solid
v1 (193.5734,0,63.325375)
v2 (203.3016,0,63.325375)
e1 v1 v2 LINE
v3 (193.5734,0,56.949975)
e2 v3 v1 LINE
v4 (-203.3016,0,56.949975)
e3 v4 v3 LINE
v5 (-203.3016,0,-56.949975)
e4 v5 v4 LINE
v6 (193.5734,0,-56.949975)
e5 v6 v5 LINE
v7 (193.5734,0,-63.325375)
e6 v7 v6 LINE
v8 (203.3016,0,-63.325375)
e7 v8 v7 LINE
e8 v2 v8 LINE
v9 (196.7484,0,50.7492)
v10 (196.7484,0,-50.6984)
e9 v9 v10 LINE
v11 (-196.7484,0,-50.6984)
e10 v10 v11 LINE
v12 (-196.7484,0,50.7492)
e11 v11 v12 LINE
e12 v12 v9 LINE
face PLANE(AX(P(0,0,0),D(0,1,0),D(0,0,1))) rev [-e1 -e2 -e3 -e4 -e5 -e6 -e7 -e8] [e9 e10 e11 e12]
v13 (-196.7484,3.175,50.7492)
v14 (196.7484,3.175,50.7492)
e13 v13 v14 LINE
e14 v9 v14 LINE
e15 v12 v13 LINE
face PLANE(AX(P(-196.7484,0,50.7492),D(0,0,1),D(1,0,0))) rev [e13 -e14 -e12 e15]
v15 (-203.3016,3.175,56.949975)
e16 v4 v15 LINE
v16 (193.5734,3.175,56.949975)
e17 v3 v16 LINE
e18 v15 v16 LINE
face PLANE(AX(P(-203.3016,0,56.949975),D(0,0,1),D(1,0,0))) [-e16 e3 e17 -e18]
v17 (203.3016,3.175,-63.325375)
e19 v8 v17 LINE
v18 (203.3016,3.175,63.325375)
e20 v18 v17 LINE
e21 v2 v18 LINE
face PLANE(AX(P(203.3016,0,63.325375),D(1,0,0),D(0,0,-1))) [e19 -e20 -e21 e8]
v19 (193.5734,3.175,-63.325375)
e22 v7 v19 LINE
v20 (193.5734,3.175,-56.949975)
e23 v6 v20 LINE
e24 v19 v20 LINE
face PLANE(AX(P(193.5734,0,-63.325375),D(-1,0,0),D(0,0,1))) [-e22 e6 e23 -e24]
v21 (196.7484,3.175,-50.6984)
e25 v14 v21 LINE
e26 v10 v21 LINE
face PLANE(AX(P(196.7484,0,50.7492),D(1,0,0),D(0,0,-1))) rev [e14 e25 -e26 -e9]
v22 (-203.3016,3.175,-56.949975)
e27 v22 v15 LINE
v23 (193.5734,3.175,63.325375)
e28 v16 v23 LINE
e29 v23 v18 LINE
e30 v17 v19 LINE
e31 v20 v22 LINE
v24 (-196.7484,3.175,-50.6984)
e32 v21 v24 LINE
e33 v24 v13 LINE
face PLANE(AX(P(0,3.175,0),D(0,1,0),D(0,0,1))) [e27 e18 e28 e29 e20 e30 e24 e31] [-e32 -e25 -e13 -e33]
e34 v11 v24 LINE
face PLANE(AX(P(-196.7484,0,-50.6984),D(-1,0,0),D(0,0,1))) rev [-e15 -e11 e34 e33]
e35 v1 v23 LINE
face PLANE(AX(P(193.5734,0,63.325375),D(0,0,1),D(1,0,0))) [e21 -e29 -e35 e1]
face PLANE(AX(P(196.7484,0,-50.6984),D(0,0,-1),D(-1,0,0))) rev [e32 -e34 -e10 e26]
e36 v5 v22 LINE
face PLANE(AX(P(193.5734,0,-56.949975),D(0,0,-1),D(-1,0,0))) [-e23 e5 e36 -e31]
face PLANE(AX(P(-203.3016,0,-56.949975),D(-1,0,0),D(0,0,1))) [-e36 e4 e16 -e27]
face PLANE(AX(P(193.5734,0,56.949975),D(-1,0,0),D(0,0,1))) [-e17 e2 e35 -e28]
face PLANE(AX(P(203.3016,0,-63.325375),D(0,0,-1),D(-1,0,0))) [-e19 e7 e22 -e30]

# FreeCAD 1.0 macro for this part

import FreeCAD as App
import Part
import Sketcher
Q = App.Units.Quantity


def add_polygon(sketch, points):
    """Adds a closed chain of lines whose ends are joined by coincident constraints."""
    first, n = sketch.GeometryCount, len(points)
    for a, b in zip(points, points[1:] + points[:1]):
        sketch.addGeometry(Part.LineSegment(App.Vector(*a, 0), App.Vector(*b, 0)), False)
    for i in range(n):
        sketch.addConstraint(Sketcher.Constraint("Coincident", first + i, 2, first + (i + 1) % n, 1))

doc = App.newDocument("Part")
body = doc.addObject("PartDesign::Body", "Body")

sketch1 = body.newObject("Sketcher::SketchObject", "Sketch")
sketch1.AttachmentSupport = (doc.getObject("XZ_Plane"), [""])
sketch1.MapMode = "FlatFace"
add_polygon(sketch1, [(194, 57), (194, 63), (203, 63), (203, -63), (194, -63), (194, -57), (-203, -57), (-203, 57)])
add_polygon(sketch1, [(197, 51), (-197, 51), (-197, -51), (197, -51)])
sketch1.addConstraint(Sketcher.Constraint("Vertical", 0))
sketch1.addConstraint(Sketcher.Constraint("Horizontal", 1))
sketch1.addConstraint(Sketcher.Constraint("Vertical", 2))
sketch1.addConstraint(Sketcher.Constraint("Horizontal", 3))
sketch1.addConstraint(Sketcher.Constraint("Vertical", 4))
sketch1.addConstraint(Sketcher.Constraint("Horizontal", 5))
sketch1.addConstraint(Sketcher.Constraint("Vertical", 6))
sketch1.addConstraint(Sketcher.Constraint("Horizontal", 7))
sketch1.addConstraint(Sketcher.Constraint("Horizontal", 8))
sketch1.addConstraint(Sketcher.Constraint("Vertical", 9))
sketch1.addConstraint(Sketcher.Constraint("Horizontal", 10))
sketch1.addConstraint(Sketcher.Constraint("Vertical", 11))
sketch1.addConstraint(Sketcher.Constraint("Symmetric", 0, 2, 3, 2, -1))
sketch1.addConstraint(Sketcher.Constraint("Equal", 0, 4))
sketch1.addConstraint(Sketcher.Constraint("DistanceX", 8, 2, 8, 1, Q("15.5 in")))
sketch1.addConstraint(Sketcher.Constraint("DistanceX", -1, 1, 1, 2, Q("8 in")))
sketch1.addConstraint(Sketcher.Constraint("DistanceX", 5, 2, -1, 1, Q("8 in")))
sketch1.addConstraint(Sketcher.Constraint("DistanceY", 9, 2, -1, 1, Q("2 in")))
sketch1.addConstraint(Sketcher.Constraint("DistanceX", 1, 1, 1, 2, Q("0.375 in")))
sketch1.addConstraint(Sketcher.Constraint("DistanceY", 0, 1, 0, 2, Q("0.251 in")))
sketch1.addConstraint(Sketcher.Constraint("DistanceY", 9, 2, 9, 1, Q("4.002 in")))
sketch1.addConstraint(Sketcher.Constraint("DistanceX", 8, 2, -1, 1, Q("7.75 in")))
sketch1.addConstraint(Sketcher.Constraint("DistanceY", 2, 2, 2, 1, 126.44755))
pad1 = body.newObject("PartDesign::Pad", "Pad")
pad1.Profile = sketch1
pad1.Length = Q("0.125 in")
pad1.Reversed = True

sketch2 = body.newObject("Sketcher::SketchObject", "Sketch001")
sketch2.AttachmentSupport = (doc.getObject("XZ_Plane"), [""])
sketch2.MapMode = "FlatFace"
sketch2.AttachmentOffset = App.Placement(App.Vector(0, 0, -0.125 * 25.4), App.Rotation())
add_polygon(sketch2, [(194, 57), (194, 63), (203, 63), (203, -63), (194, -63), (194, -57), (-203, -57), (-203, 57)])
add_polygon(sketch2, [(197, 51), (-197, 51), (-197, -51), (197, -51)])
sketch2.addConstraint(Sketcher.Constraint("Vertical", 0))
sketch2.addConstraint(Sketcher.Constraint("Horizontal", 1))
sketch2.addConstraint(Sketcher.Constraint("Vertical", 2))
sketch2.addConstraint(Sketcher.Constraint("Horizontal", 3))
sketch2.addConstraint(Sketcher.Constraint("Vertical", 4))
sketch2.addConstraint(Sketcher.Constraint("Horizontal", 5))
sketch2.addConstraint(Sketcher.Constraint("Vertical", 6))
sketch2.addConstraint(Sketcher.Constraint("Horizontal", 7))
sketch2.addConstraint(Sketcher.Constraint("Horizontal", 8))
sketch2.addConstraint(Sketcher.Constraint("Vertical", 9))
sketch2.addConstraint(Sketcher.Constraint("Horizontal", 10))
sketch2.addConstraint(Sketcher.Constraint("Vertical", 11))
sketch2.addConstraint(Sketcher.Constraint("Symmetric", 0, 2, 3, 2, -1))
sketch2.addConstraint(Sketcher.Constraint("Equal", 0, 4))
sketch2.addConstraint(Sketcher.Constraint("DistanceX", 1, 1, 1, 2, Q("0.383 in")))
sketch2.addConstraint(Sketcher.Constraint("DistanceX", 5, 2, 5, 1, Q("15.625 in")))
sketch2.addConstraint(Sketcher.Constraint("DistanceX", 8, 2, 8, 1, Q("15.492 in")))
sketch2.addConstraint(Sketcher.Constraint("DistanceY", 0, 1, 0, 2, Q("0.251 in")))
sketch2.addConstraint(Sketcher.Constraint("DistanceY", 9, 2, 9, 1, Q("3.994 in")))
sketch2.addConstraint(Sketcher.Constraint("DistanceX", 8, 2, 1, 2, Q("15.75 in")))
sketch2.addConstraint(Sketcher.Constraint("DistanceX", -1, 1, 0, 2, Q("7.621 in")))
sketch2.addConstraint(Sketcher.Constraint("DistanceY", -1, 1, 8, 2, Q("1.998 in")))
sketch2.addConstraint(Sketcher.Constraint("DistanceY", 2, 2, 2, 1, 126.65075))
pad2 = body.newObject("PartDesign::Pad", "Pad001")
pad2.Profile = sketch2
pad2.Length = Q("0.125 in")

doc.recompute()
